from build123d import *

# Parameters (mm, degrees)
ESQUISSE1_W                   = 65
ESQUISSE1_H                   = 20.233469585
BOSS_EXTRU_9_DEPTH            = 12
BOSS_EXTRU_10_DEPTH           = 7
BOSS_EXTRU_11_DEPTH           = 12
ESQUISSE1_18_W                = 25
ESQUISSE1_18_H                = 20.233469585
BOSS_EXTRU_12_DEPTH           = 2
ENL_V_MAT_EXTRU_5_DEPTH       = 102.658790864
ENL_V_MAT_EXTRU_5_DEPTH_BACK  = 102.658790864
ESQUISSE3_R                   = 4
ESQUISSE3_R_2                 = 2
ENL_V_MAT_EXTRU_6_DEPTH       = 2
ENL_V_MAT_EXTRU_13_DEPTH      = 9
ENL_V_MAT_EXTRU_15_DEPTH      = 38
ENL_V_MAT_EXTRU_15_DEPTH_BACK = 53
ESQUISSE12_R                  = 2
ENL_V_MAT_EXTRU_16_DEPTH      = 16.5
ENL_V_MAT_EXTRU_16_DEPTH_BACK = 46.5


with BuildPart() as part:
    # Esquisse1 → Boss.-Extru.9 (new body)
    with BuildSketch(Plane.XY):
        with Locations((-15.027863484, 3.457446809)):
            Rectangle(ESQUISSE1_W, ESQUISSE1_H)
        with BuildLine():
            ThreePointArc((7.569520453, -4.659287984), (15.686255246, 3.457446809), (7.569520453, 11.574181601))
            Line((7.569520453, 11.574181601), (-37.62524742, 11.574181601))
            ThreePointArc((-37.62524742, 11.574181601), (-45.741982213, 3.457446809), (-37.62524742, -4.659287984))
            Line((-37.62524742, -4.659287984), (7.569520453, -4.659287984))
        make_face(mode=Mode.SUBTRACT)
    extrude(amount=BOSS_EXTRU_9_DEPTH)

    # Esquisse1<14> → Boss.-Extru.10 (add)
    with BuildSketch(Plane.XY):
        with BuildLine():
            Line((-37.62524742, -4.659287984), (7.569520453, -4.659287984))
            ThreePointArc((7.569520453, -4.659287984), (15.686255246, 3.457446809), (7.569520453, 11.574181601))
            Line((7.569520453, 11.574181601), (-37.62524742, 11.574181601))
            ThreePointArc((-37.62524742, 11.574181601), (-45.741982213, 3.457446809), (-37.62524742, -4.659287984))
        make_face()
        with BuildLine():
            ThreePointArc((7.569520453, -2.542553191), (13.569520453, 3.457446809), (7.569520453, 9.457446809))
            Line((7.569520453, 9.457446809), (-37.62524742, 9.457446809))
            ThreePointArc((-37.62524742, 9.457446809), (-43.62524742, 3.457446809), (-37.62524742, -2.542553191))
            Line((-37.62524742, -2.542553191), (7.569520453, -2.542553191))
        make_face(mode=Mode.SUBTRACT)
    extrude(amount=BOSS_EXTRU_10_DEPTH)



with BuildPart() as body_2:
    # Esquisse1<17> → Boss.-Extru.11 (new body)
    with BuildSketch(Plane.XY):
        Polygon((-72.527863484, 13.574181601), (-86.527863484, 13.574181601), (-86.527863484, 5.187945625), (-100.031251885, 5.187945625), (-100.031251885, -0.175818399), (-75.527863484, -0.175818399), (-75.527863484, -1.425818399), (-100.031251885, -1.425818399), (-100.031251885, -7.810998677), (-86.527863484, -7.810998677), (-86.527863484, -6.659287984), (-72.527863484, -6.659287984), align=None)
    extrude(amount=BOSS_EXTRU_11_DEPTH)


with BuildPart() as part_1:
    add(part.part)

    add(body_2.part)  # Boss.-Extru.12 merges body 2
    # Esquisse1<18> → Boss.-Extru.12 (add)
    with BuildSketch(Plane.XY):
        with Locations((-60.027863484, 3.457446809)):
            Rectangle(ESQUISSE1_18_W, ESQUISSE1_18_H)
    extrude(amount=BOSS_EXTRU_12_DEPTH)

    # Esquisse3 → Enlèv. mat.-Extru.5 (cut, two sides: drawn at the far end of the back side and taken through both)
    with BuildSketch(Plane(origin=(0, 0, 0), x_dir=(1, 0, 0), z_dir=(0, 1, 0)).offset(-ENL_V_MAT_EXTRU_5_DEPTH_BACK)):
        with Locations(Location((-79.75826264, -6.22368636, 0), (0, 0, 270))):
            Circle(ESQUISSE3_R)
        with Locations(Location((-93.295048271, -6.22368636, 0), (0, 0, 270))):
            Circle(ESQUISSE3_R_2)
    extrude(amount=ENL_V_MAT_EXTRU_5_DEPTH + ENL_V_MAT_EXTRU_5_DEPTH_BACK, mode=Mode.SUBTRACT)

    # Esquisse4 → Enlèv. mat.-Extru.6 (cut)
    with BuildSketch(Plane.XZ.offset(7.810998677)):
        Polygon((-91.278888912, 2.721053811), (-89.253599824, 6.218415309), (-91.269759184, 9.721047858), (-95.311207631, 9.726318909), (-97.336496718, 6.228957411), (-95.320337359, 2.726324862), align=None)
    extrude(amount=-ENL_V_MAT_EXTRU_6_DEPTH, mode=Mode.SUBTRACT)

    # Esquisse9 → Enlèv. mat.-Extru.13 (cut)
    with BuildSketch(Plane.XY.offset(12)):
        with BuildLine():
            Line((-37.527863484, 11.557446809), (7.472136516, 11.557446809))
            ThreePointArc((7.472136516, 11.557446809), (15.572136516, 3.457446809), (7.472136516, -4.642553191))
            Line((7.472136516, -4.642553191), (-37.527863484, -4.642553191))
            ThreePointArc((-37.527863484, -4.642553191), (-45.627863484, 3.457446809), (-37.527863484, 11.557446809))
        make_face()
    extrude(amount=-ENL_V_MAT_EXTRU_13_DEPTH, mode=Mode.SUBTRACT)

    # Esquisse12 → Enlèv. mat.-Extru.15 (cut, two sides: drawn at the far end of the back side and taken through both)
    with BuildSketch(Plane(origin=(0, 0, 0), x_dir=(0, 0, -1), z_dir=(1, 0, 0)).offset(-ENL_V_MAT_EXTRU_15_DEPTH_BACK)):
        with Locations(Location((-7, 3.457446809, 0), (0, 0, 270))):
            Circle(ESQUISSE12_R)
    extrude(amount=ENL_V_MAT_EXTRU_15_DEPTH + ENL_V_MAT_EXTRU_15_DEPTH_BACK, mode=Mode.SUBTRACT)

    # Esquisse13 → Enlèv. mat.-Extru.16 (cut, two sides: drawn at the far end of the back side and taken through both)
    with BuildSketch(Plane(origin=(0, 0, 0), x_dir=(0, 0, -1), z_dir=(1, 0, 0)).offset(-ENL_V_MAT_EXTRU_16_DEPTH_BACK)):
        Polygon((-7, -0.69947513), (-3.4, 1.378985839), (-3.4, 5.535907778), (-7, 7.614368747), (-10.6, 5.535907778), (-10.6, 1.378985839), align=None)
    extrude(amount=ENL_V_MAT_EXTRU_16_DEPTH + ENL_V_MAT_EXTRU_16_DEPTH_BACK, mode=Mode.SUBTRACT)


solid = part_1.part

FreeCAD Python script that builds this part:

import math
import FreeCAD as App
import Part
import Sketcher
from FreeCAD import Vector
Q = App.Units.Quantity

doc = App.newDocument("Part")
body = doc.addObject("PartDesign::Body", "Body")

sketch1 = body.newObject("Sketcher::SketchObject", "Sketch")
sketch1.AttachmentSupport = (doc.getObject("XY_Plane"), [""])
sketch1.MapMode = "FlatFace"
sketch1.addGeometry(Part.LineSegment(Vector(-47.527863, 13.574182, 0), Vector(-47.527863, -6.659288, 0)), False)
sketch1.addGeometry(Part.LineSegment(Vector(-47.527863, -6.659288, 0), Vector(17.472137, -6.659288, 0)), False)
sketch1.addGeometry(Part.LineSegment(Vector(17.472137, -6.659288, 0), Vector(17.472137, 13.574182, 0)), False)
sketch1.addGeometry(Part.LineSegment(Vector(17.472137, 13.574182, 0), Vector(-47.527863, 13.574182, 0)), False)
sketch1.addGeometry(Part.ArcOfCircle(Part.Circle(Vector(7.56952, 3.457447, 0), Vector(0, 0, 1), 8.116735), math.radians(-90), math.radians(90)), False)
sketch1.addGeometry(Part.LineSegment(Vector(7.56952, -4.659288, 0), Vector(-37.625247, -4.659288, 0)), False)
sketch1.addGeometry(Part.ArcOfCircle(Part.Circle(Vector(-37.625247, 3.457447, 0), Vector(0, 0, 1), 8.116735), math.radians(90), math.radians(270)), False)
sketch1.addGeometry(Part.LineSegment(Vector(-37.625247, 11.574182, 0), Vector(7.56952, 11.574182, 0)), False)
sketch1.addConstraint(Sketcher.Constraint("Coincident", 0, 2, 1, 1))
sketch1.addConstraint(Sketcher.Constraint("Coincident", 1, 2, 2, 1))
sketch1.addConstraint(Sketcher.Constraint("Coincident", 2, 2, 3, 1))
sketch1.addConstraint(Sketcher.Constraint("Coincident", 3, 2, 0, 1))
sketch1.addConstraint(Sketcher.Constraint("Tangent", 4, 1, 5, 1))
sketch1.addConstraint(Sketcher.Constraint("Tangent", 5, 2, 6, 2))
sketch1.addConstraint(Sketcher.Constraint("Tangent", 6, 1, 7, 1))
sketch1.addConstraint(Sketcher.Constraint("Tangent", 7, 2, 4, 2))
sketch1.addConstraint(Sketcher.Constraint("Vertical", 0))
sketch1.addConstraint(Sketcher.Constraint("Horizontal", 1))
sketch1.addConstraint(Sketcher.Constraint("Vertical", 2))
sketch1.addConstraint(Sketcher.Constraint("Horizontal", 3))
sketch1.addConstraint(Sketcher.Constraint("Horizontal", 5))
sketch1.addConstraint(Sketcher.Constraint("Horizontal", 7))
sketch1.addConstraint(Sketcher.Constraint("DistanceX", 1, 1, 1, 2, 65.0))
sketch1.addConstraint(Sketcher.Constraint("DistanceY", 1, 2, 4, 1, 2.0))
sketch1.addConstraint(Sketcher.Constraint("DistanceY", 6, 1, 3, 2, 2.0))
sketch1.addConstraint(Sketcher.Constraint("Radius", 4, 8.116735))
sketch1.addConstraint(Sketcher.Constraint("DistanceX", 5, 2, 5, 1, 45.194768))
sketch1.addConstraint(Sketcher.Constraint("DistanceX", -1, 1, 4, 3, 7.56952))
sketch1.addConstraint(Sketcher.Constraint("DistanceY", -1, 1, 2, 2, 13.574182))
sketch1.addConstraint(Sketcher.Constraint("DistanceX", 0, 2, -1, 1, 47.527863))
pad1 = body.newObject("PartDesign::Pad", "Pad")
pad1.Profile = sketch1
pad1.Length = 12

sketch2 = body.newObject("Sketcher::SketchObject", "Sketch001")
sketch2.AttachmentSupport = (doc.getObject("XY_Plane"), [""])
sketch2.MapMode = "FlatFace"
sketch2.addGeometry(Part.LineSegment(Vector(-37.625247, -4.659288, 0), Vector(7.56952, -4.659288, 0)), False)
sketch2.addGeometry(Part.ArcOfCircle(Part.Circle(Vector(7.56952, 3.457447, 0), Vector(0, 0, 1), 8.116735), math.radians(-90), math.radians(90)), False)
sketch2.addGeometry(Part.LineSegment(Vector(7.56952, 11.574182, 0), Vector(-37.625247, 11.574182, 0)), False)
sketch2.addGeometry(Part.ArcOfCircle(Part.Circle(Vector(-37.625247, 3.457447, 0), Vector(0, 0, 1), 8.116735), math.radians(90), math.radians(270)), False)
sketch2.addGeometry(Part.ArcOfCircle(Part.Circle(Vector(7.56952, 3.457447, 0), Vector(0, 0, 1), 6), math.radians(-90), math.radians(90)), False)
sketch2.addGeometry(Part.LineSegment(Vector(7.56952, -2.542553, 0), Vector(-37.625247, -2.542553, 0)), False)
sketch2.addGeometry(Part.ArcOfCircle(Part.Circle(Vector(-37.625247, 3.457447, 0), Vector(0, 0, 1), 6), math.radians(90), math.radians(270)), False)
sketch2.addGeometry(Part.LineSegment(Vector(-37.625247, 9.457447, 0), Vector(7.56952, 9.457447, 0)), False)
sketch2.addConstraint(Sketcher.Constraint("Tangent", 0, 2, 1, 1))
sketch2.addConstraint(Sketcher.Constraint("Tangent", 1, 2, 2, 1))
sketch2.addConstraint(Sketcher.Constraint("Tangent", 2, 2, 3, 1))
sketch2.addConstraint(Sketcher.Constraint("Tangent", 3, 2, 0, 1))
sketch2.addConstraint(Sketcher.Constraint("Tangent", 4, 1, 5, 1))
sketch2.addConstraint(Sketcher.Constraint("Tangent", 5, 2, 6, 2))
sketch2.addConstraint(Sketcher.Constraint("Tangent", 6, 1, 7, 1))
sketch2.addConstraint(Sketcher.Constraint("Tangent", 7, 2, 4, 2))
sketch2.addConstraint(Sketcher.Constraint("Horizontal", 0))
sketch2.addConstraint(Sketcher.Constraint("Horizontal", 2))
sketch2.addConstraint(Sketcher.Constraint("Horizontal", 5))
sketch2.addConstraint(Sketcher.Constraint("Horizontal", 7))
sketch2.addConstraint(Sketcher.Constraint("Coincident", 4, 3, 1, 3))
sketch2.addConstraint(Sketcher.Constraint("Vertical", 6, 3, 2, 2))
sketch2.addConstraint(Sketcher.Constraint("Radius", 4, 6.0))
sketch2.addConstraint(Sketcher.Constraint("Radius", 1, 8.116735))
sketch2.addConstraint(Sketcher.Constraint("DistanceX", 0, 1, 0, 2, 45.194768))
sketch2.addConstraint(Sketcher.Constraint("DistanceX", -1, 1, 1, 3, 7.56952))
sketch2.addConstraint(Sketcher.Constraint("DistanceY", -1, 1, 1, 2, 11.574182))
pad2 = body.newObject("PartDesign::Pad", "Pad001")
pad2.Profile = sketch2
pad2.Length = 7
body2 = doc.addObject("PartDesign::Body", "Body001")

sketch3 = body2.newObject("Sketcher::SketchObject", "Sketch002")
sketch3.AttachmentSupport = (doc.getObject("XY_Plane001"), [""])
sketch3.MapMode = "FlatFace"
sketch3.addGeometry(Part.LineSegment(Vector(-72.527863, 13.574182, 0), Vector(-86.527863, 13.574182, 0)), False)
sketch3.addGeometry(Part.LineSegment(Vector(-86.527863, 13.574182, 0), Vector(-86.527863, 5.187946, 0)), False)
sketch3.addGeometry(Part.LineSegment(Vector(-86.527863, 5.187946, 0), Vector(-100.031252, 5.187946, 0)), False)
sketch3.addGeometry(Part.LineSegment(Vector(-100.031252, 5.187946, 0), Vector(-100.031252, -0.175818, 0)), False)
sketch3.addGeometry(Part.LineSegment(Vector(-100.031252, -0.175818, 0), Vector(-75.527863, -0.175818, 0)), False)
sketch3.addGeometry(Part.LineSegment(Vector(-75.527863, -0.175818, 0), Vector(-75.527863, -1.425818, 0)), False)
sketch3.addGeometry(Part.LineSegment(Vector(-75.527863, -1.425818, 0), Vector(-100.031252, -1.425818, 0)), False)
sketch3.addGeometry(Part.LineSegment(Vector(-100.031252, -1.425818, 0), Vector(-100.031252, -7.810999, 0)), False)
sketch3.addGeometry(Part.LineSegment(Vector(-100.031252, -7.810999, 0), Vector(-86.527863, -7.810999, 0)), False)
sketch3.addGeometry(Part.LineSegment(Vector(-86.527863, -7.810999, 0), Vector(-86.527863, -6.659288, 0)), False)
sketch3.addGeometry(Part.LineSegment(Vector(-86.527863, -6.659288, 0), Vector(-72.527863, -6.659288, 0)), False)
sketch3.addGeometry(Part.LineSegment(Vector(-72.527863, -6.659288, 0), Vector(-72.527863, 13.574182, 0)), False)
sketch3.addConstraint(Sketcher.Constraint("Coincident", 0, 2, 1, 1))
sketch3.addConstraint(Sketcher.Constraint("Coincident", 1, 2, 2, 1))
sketch3.addConstraint(Sketcher.Constraint("Coincident", 2, 2, 3, 1))
sketch3.addConstraint(Sketcher.Constraint("Coincident", 3, 2, 4, 1))
sketch3.addConstraint(Sketcher.Constraint("Coincident", 4, 2, 5, 1))
sketch3.addConstraint(Sketcher.Constraint("Coincident", 5, 2, 6, 1))
sketch3.addConstraint(Sketcher.Constraint("Coincident", 6, 2, 7, 1))
sketch3.addConstraint(Sketcher.Constraint("Coincident", 7, 2, 8, 1))
sketch3.addConstraint(Sketcher.Constraint("Coincident", 8, 2, 9, 1))
sketch3.addConstraint(Sketcher.Constraint("Coincident", 9, 2, 10, 1))
sketch3.addConstraint(Sketcher.Constraint("Coincident", 10, 2, 11, 1))
sketch3.addConstraint(Sketcher.Constraint("Coincident", 11, 2, 0, 1))
sketch3.addConstraint(Sketcher.Constraint("Horizontal", 0))
sketch3.addConstraint(Sketcher.Constraint("Vertical", 1))
sketch3.addConstraint(Sketcher.Constraint("Horizontal", 2))
sketch3.addConstraint(Sketcher.Constraint("Vertical", 3))
sketch3.addConstraint(Sketcher.Constraint("Horizontal", 4))
sketch3.addConstraint(Sketcher.Constraint("Vertical", 5))
sketch3.addConstraint(Sketcher.Constraint("Horizontal", 6))
sketch3.addConstraint(Sketcher.Constraint("Vertical", 7))
sketch3.addConstraint(Sketcher.Constraint("Horizontal", 8))
sketch3.addConstraint(Sketcher.Constraint("Vertical", 9))
sketch3.addConstraint(Sketcher.Constraint("Horizontal", 10))
sketch3.addConstraint(Sketcher.Constraint("Vertical", 11))
sketch3.addConstraint(Sketcher.Constraint("Vertical", 3, 2, 6, 2))
sketch3.addConstraint(Sketcher.Constraint("Vertical", 1, 2, 8, 2))
sketch3.addConstraint(Sketcher.Constraint("DistanceX", 0, 2, 0, 1, 14.0))
sketch3.addConstraint(Sketcher.Constraint("DistanceX", 1, 2, 4, 2, 11.0))
sketch3.addConstraint(Sketcher.Constraint("DistanceY", 5, 2, 0, 2, 15.0))
sketch3.addConstraint(Sketcher.Constraint("DistanceY", 5, 2, 5, 1, 1.25))
sketch3.addConstraint(Sketcher.Constraint("DistanceY", 7, 2, -1, 1, 7.810999))
sketch3.addConstraint(Sketcher.Constraint("DistanceX", 2, 2, 2, 1, 13.503388))
sketch3.addConstraint(Sketcher.Constraint("DistanceY", 7, 2, 7, 1, 6.38518))
sketch3.addConstraint(Sketcher.Constraint("DistanceY", 9, 1, 9, 2, 1.151711))
sketch3.addConstraint(Sketcher.Constraint("DistanceY", 1, 2, 1, 1, 8.386236))
sketch3.addConstraint(Sketcher.Constraint("DistanceX", 2, 2, -1, 1, 100.031252))
pad3 = body2.newObject("PartDesign::Pad", "Pad002")
pad3.Profile = sketch3
pad3.Length = 12
body.AllowCompound = True
doc.recompute()

boolean = body.newObject("PartDesign::Boolean", "Boolean")
boolean.Type = "Fuse"
boolean.addObjects([body2])

sketch4 = body.newObject("Sketcher::SketchObject", "Sketch003")
sketch4.AttachmentSupport = (doc.getObject("XY_Plane"), [""])
sketch4.MapMode = "FlatFace"
sketch4.addGeometry(Part.LineSegment(Vector(-72.527863, 13.574182, 0), Vector(-72.527863, -6.659288, 0)), False)
sketch4.addGeometry(Part.LineSegment(Vector(-72.527863, -6.659288, 0), Vector(-47.527863, -6.659288, 0)), False)
sketch4.addGeometry(Part.LineSegment(Vector(-47.527863, -6.659288, 0), Vector(-47.527863, 13.574182, 0)), False)
sketch4.addGeometry(Part.LineSegment(Vector(-47.527863, 13.574182, 0), Vector(-72.527863, 13.574182, 0)), False)
sketch4.addConstraint(Sketcher.Constraint("Coincident", 0, 2, 1, 1))
sketch4.addConstraint(Sketcher.Constraint("Coincident", 1, 2, 2, 1))
sketch4.addConstraint(Sketcher.Constraint("Coincident", 2, 2, 3, 1))
sketch4.addConstraint(Sketcher.Constraint("Coincident", 3, 2, 0, 1))
sketch4.addConstraint(Sketcher.Constraint("Vertical", 0))
sketch4.addConstraint(Sketcher.Constraint("Horizontal", 1))
sketch4.addConstraint(Sketcher.Constraint("Vertical", 2))
sketch4.addConstraint(Sketcher.Constraint("Horizontal", 3))
sketch4.addConstraint(Sketcher.Constraint("DistanceX", 1, 1, 1, 2, 25.0))
sketch4.addConstraint(Sketcher.Constraint("DistanceY", 0, 2, 0, 1, 20.23347))
sketch4.addConstraint(Sketcher.Constraint("DistanceY", -1, 1, 2, 2, 13.574182))
sketch4.addConstraint(Sketcher.Constraint("DistanceX", 0, 2, -1, 1, 72.527863))
pad4 = body.newObject("PartDesign::Pad", "Pad003")
pad4.Profile = sketch4
pad4.Length = 2

sketch5 = body.newObject("Sketcher::SketchObject", "Sketch004")
sketch5.AttachmentSupport = (doc.getObject("XZ_Plane"), [""])
sketch5.MapMode = "FlatFace"
sketch5.addGeometry(Part.Circle(Vector(-79.758263, 6.223686, 0), Vector(0, 0, 1), 4), False)
sketch5.addGeometry(Part.Circle(Vector(-93.295048, 6.223686, 0), Vector(0, 0, 1), 2), False)
sketch5.addConstraint(Sketcher.Constraint("Horizontal", 0, 3, 1, 3))
sketch5.addConstraint(Sketcher.Constraint("Diameter", 0, 8.0))
sketch5.addConstraint(Sketcher.Constraint("Diameter", 1, 4.0))
sketch5.addConstraint(Sketcher.Constraint("DistanceX", 1, 3, -1, 1, 93.295048))
sketch5.addConstraint(Sketcher.Constraint("DistanceX", 0, 3, -1, 1, 79.758263))
sketch5.addConstraint(Sketcher.Constraint("DistanceY", -1, 1, 0, 3, 6.223686))
pocket1 = body.newObject("PartDesign::Pocket", "Pocket")
pocket1.Profile = sketch5
pocket1.Type = "ThroughAll"
pocket1.Midplane = True

sketch6 = body.newObject("Sketcher::SketchObject", "Sketch005")
sketch6.AttachmentSupport = (doc.getObject("XZ_Plane"), [""])
sketch6.MapMode = "FlatFace"
sketch6.AttachmentOffset = App.Placement(Vector(0, 0, 7.810999), App.Rotation())
sketch6.addGeometry(Part.LineSegment(Vector(-91.278889, 2.721054, 0), Vector(-89.2536, 6.218415, 0)), False)
sketch6.addGeometry(Part.LineSegment(Vector(-89.2536, 6.218415, 0), Vector(-91.269759, 9.721048, 0)), False)
sketch6.addGeometry(Part.LineSegment(Vector(-91.269759, 9.721048, 0), Vector(-95.311208, 9.726319, 0)), False)
sketch6.addGeometry(Part.LineSegment(Vector(-95.311208, 9.726319, 0), Vector(-97.336497, 6.228957, 0)), False)
sketch6.addGeometry(Part.LineSegment(Vector(-97.336497, 6.228957, 0), Vector(-95.320337, 2.726325, 0)), False)
sketch6.addGeometry(Part.LineSegment(Vector(-95.320337, 2.726325, 0), Vector(-91.278889, 2.721054, 0)), False)
sketch6.addConstraint(Sketcher.Constraint("Coincident", 0, 2, 1, 1))
sketch6.addConstraint(Sketcher.Constraint("Coincident", 1, 2, 2, 1))
sketch6.addConstraint(Sketcher.Constraint("Coincident", 2, 2, 3, 1))
sketch6.addConstraint(Sketcher.Constraint("Coincident", 3, 2, 4, 1))
sketch6.addConstraint(Sketcher.Constraint("Coincident", 4, 2, 5, 1))
sketch6.addConstraint(Sketcher.Constraint("Coincident", 5, 2, 0, 1))
sketch6.addConstraint(Sketcher.Constraint("Parallel", 0, 3))
sketch6.addConstraint(Sketcher.Constraint("Parallel", 1, 4))
sketch6.addConstraint(Sketcher.Constraint("Parallel", 2, 5))
sketch6.addConstraint(Sketcher.Constraint("Equal", 0, 1))
sketch6.addConstraint(Sketcher.Constraint("Equal", 1, 2))
sketch6.addConstraint(Sketcher.Constraint("Equal", 2, 3))
sketch6.addConstraint(Sketcher.Constraint("DistanceX", 0, 2, -1, 1, 89.2536))
sketch6.addConstraint(Sketcher.Constraint("Distance", 0, 4.041452))
sketch6.addConstraint(Sketcher.Constraint("DistanceX", 1, 2, -1, 1, 91.269759))
sketch6.addConstraint(Sketcher.Constraint("DistanceY", -1, 1, 2, 2, 9.726319))
sketch6.addConstraint(Sketcher.Constraint("DistanceX", 5, 2, -1, 1, 91.278889))
sketch6.addConstraint(Sketcher.Constraint("DistanceY", 1, 2, 2, 2, 0.005271))
pocket2 = body.newObject("PartDesign::Pocket", "Pocket001")
pocket2.Profile = sketch6
pocket2.Length = 2

sketch7 = body.newObject("Sketcher::SketchObject", "Sketch006")
sketch7.AttachmentSupport = (doc.getObject("XY_Plane"), [""])
sketch7.MapMode = "FlatFace"
sketch7.AttachmentOffset = App.Placement(Vector(0, 0, 12), App.Rotation())
sketch7.addGeometry(Part.LineSegment(Vector(7.472137, 11.557447, 0), Vector(-37.527863, 11.557447, 0)), False)
sketch7.addGeometry(Part.ArcOfCircle(Part.Circle(Vector(-37.527863, 3.457447, 0), Vector(0, 0, 1), 8.1), math.radians(90), math.radians(270)), False)
sketch7.addGeometry(Part.LineSegment(Vector(-37.527863, -4.642553, 0), Vector(7.472137, -4.642553, 0)), False)
sketch7.addGeometry(Part.ArcOfCircle(Part.Circle(Vector(7.472137, 3.457447, 0), Vector(0, 0, 1), 8.1), math.radians(-90), math.radians(90)), False)
sketch7.addConstraint(Sketcher.Constraint("Tangent", 0, 2, 1, 1))
sketch7.addConstraint(Sketcher.Constraint("Tangent", 1, 2, 2, 1))
sketch7.addConstraint(Sketcher.Constraint("Tangent", 2, 2, 3, 1))
sketch7.addConstraint(Sketcher.Constraint("Tangent", 3, 2, 0, 1))
sketch7.addConstraint(Sketcher.Constraint("Horizontal", 0))
sketch7.addConstraint(Sketcher.Constraint("Horizontal", 2))
sketch7.addConstraint(Sketcher.Constraint("Radius", 1, 8.1))
sketch7.addConstraint(Sketcher.Constraint("DistanceX", 0, 2, 0, 1, 45.0))
sketch7.addConstraint(Sketcher.Constraint("DistanceX", 1, 3, -1, 1, 37.527863))
sketch7.addConstraint(Sketcher.Constraint("DistanceY", -1, 1, 1, 3, 3.457447))
pocket3 = body.newObject("PartDesign::Pocket", "Pocket002")
pocket3.Profile = sketch7
pocket3.Length = 9

sketch8 = body.newObject("Sketcher::SketchObject", "Sketch007")
sketch8.AttachmentSupport = (doc.getObject("YZ_Plane"), [""])
sketch8.MapMode = "FlatFace"
sketch8.addGeometry(Part.Circle(Vector(3.457447, 7, 0), Vector(0, 0, 1), 2), False)
sketch8.addConstraint(Sketcher.Constraint("Diameter", 0, 4.0))
sketch8.addConstraint(Sketcher.Constraint("DistanceY", -1, 1, 0, 3, 7.0))
sketch8.addConstraint(Sketcher.Constraint("DistanceX", -1, 1, 0, 3, 3.457447))
pocket4 = body.newObject("PartDesign::Pocket", "Pocket003")
pocket4.Profile = sketch8
pocket4.Type = "TwoLengths"
pocket4.Length = 38
pocket4.Length2 = 53
pocket4.Reversed = True

sketch9 = body.newObject("Sketcher::SketchObject", "Sketch008")
sketch9.AttachmentSupport = (doc.getObject("YZ_Plane"), [""])
sketch9.MapMode = "FlatFace"
sketch9.addGeometry(Part.LineSegment(Vector(-0.699475, 7, 0), Vector(1.378986, 3.4, 0)), False)
sketch9.addGeometry(Part.LineSegment(Vector(1.378986, 3.4, 0), Vector(5.535908, 3.4, 0)), False)
sketch9.addGeometry(Part.LineSegment(Vector(5.535908, 3.4, 0), Vector(7.614369, 7, 0)), False)
sketch9.addGeometry(Part.LineSegment(Vector(7.614369, 7, 0), Vector(5.535908, 10.6, 0)), False)
sketch9.addGeometry(Part.LineSegment(Vector(5.535908, 10.6, 0), Vector(1.378986, 10.6, 0)), False)
sketch9.addGeometry(Part.LineSegment(Vector(1.378986, 10.6, 0), Vector(-0.699475, 7, 0)), False)
sketch9.addConstraint(Sketcher.Constraint("Coincident", 0, 2, 1, 1))
sketch9.addConstraint(Sketcher.Constraint("Coincident", 1, 2, 2, 1))
sketch9.addConstraint(Sketcher.Constraint("Coincident", 2, 2, 3, 1))
sketch9.addConstraint(Sketcher.Constraint("Coincident", 3, 2, 4, 1))
sketch9.addConstraint(Sketcher.Constraint("Coincident", 4, 2, 5, 1))
sketch9.addConstraint(Sketcher.Constraint("Coincident", 5, 2, 0, 1))
sketch9.addConstraint(Sketcher.Constraint("Horizontal", 1))
sketch9.addConstraint(Sketcher.Constraint("Horizontal", 4))
sketch9.addConstraint(Sketcher.Constraint("Parallel", 0, 3))
sketch9.addConstraint(Sketcher.Constraint("Parallel", 2, 5))
sketch9.addConstraint(Sketcher.Constraint("Horizontal", 2, 2, 5, 2))
sketch9.addConstraint(Sketcher.Constraint("Vertical", 1, 2, 3, 2))
sketch9.addConstraint(Sketcher.Constraint("Vertical", 0, 2, 4, 2))
sketch9.addConstraint(Sketcher.Constraint("Angle", 0, Q("-60 deg")))
sketch9.addConstraint(Sketcher.Constraint("DistanceY", -1, 1, 2, 2, 7.0))
sketch9.addConstraint(Sketcher.Constraint("DistanceY", -1, 1, 0, 2, 3.4))
sketch9.addConstraint(Sketcher.Constraint("DistanceX", 1, 1, 1, 2, 4.156922))
sketch9.addConstraint(Sketcher.Constraint("DistanceX", -1, 1, 2, 2, 7.614369))
pocket5 = body.newObject("PartDesign::Pocket", "Pocket004")
pocket5.Profile = sketch9
pocket5.Type = "TwoLengths"
pocket5.Length = 16.5
pocket5.Length2 = 46.5
pocket5.Reversed = True

doc.recompute()
